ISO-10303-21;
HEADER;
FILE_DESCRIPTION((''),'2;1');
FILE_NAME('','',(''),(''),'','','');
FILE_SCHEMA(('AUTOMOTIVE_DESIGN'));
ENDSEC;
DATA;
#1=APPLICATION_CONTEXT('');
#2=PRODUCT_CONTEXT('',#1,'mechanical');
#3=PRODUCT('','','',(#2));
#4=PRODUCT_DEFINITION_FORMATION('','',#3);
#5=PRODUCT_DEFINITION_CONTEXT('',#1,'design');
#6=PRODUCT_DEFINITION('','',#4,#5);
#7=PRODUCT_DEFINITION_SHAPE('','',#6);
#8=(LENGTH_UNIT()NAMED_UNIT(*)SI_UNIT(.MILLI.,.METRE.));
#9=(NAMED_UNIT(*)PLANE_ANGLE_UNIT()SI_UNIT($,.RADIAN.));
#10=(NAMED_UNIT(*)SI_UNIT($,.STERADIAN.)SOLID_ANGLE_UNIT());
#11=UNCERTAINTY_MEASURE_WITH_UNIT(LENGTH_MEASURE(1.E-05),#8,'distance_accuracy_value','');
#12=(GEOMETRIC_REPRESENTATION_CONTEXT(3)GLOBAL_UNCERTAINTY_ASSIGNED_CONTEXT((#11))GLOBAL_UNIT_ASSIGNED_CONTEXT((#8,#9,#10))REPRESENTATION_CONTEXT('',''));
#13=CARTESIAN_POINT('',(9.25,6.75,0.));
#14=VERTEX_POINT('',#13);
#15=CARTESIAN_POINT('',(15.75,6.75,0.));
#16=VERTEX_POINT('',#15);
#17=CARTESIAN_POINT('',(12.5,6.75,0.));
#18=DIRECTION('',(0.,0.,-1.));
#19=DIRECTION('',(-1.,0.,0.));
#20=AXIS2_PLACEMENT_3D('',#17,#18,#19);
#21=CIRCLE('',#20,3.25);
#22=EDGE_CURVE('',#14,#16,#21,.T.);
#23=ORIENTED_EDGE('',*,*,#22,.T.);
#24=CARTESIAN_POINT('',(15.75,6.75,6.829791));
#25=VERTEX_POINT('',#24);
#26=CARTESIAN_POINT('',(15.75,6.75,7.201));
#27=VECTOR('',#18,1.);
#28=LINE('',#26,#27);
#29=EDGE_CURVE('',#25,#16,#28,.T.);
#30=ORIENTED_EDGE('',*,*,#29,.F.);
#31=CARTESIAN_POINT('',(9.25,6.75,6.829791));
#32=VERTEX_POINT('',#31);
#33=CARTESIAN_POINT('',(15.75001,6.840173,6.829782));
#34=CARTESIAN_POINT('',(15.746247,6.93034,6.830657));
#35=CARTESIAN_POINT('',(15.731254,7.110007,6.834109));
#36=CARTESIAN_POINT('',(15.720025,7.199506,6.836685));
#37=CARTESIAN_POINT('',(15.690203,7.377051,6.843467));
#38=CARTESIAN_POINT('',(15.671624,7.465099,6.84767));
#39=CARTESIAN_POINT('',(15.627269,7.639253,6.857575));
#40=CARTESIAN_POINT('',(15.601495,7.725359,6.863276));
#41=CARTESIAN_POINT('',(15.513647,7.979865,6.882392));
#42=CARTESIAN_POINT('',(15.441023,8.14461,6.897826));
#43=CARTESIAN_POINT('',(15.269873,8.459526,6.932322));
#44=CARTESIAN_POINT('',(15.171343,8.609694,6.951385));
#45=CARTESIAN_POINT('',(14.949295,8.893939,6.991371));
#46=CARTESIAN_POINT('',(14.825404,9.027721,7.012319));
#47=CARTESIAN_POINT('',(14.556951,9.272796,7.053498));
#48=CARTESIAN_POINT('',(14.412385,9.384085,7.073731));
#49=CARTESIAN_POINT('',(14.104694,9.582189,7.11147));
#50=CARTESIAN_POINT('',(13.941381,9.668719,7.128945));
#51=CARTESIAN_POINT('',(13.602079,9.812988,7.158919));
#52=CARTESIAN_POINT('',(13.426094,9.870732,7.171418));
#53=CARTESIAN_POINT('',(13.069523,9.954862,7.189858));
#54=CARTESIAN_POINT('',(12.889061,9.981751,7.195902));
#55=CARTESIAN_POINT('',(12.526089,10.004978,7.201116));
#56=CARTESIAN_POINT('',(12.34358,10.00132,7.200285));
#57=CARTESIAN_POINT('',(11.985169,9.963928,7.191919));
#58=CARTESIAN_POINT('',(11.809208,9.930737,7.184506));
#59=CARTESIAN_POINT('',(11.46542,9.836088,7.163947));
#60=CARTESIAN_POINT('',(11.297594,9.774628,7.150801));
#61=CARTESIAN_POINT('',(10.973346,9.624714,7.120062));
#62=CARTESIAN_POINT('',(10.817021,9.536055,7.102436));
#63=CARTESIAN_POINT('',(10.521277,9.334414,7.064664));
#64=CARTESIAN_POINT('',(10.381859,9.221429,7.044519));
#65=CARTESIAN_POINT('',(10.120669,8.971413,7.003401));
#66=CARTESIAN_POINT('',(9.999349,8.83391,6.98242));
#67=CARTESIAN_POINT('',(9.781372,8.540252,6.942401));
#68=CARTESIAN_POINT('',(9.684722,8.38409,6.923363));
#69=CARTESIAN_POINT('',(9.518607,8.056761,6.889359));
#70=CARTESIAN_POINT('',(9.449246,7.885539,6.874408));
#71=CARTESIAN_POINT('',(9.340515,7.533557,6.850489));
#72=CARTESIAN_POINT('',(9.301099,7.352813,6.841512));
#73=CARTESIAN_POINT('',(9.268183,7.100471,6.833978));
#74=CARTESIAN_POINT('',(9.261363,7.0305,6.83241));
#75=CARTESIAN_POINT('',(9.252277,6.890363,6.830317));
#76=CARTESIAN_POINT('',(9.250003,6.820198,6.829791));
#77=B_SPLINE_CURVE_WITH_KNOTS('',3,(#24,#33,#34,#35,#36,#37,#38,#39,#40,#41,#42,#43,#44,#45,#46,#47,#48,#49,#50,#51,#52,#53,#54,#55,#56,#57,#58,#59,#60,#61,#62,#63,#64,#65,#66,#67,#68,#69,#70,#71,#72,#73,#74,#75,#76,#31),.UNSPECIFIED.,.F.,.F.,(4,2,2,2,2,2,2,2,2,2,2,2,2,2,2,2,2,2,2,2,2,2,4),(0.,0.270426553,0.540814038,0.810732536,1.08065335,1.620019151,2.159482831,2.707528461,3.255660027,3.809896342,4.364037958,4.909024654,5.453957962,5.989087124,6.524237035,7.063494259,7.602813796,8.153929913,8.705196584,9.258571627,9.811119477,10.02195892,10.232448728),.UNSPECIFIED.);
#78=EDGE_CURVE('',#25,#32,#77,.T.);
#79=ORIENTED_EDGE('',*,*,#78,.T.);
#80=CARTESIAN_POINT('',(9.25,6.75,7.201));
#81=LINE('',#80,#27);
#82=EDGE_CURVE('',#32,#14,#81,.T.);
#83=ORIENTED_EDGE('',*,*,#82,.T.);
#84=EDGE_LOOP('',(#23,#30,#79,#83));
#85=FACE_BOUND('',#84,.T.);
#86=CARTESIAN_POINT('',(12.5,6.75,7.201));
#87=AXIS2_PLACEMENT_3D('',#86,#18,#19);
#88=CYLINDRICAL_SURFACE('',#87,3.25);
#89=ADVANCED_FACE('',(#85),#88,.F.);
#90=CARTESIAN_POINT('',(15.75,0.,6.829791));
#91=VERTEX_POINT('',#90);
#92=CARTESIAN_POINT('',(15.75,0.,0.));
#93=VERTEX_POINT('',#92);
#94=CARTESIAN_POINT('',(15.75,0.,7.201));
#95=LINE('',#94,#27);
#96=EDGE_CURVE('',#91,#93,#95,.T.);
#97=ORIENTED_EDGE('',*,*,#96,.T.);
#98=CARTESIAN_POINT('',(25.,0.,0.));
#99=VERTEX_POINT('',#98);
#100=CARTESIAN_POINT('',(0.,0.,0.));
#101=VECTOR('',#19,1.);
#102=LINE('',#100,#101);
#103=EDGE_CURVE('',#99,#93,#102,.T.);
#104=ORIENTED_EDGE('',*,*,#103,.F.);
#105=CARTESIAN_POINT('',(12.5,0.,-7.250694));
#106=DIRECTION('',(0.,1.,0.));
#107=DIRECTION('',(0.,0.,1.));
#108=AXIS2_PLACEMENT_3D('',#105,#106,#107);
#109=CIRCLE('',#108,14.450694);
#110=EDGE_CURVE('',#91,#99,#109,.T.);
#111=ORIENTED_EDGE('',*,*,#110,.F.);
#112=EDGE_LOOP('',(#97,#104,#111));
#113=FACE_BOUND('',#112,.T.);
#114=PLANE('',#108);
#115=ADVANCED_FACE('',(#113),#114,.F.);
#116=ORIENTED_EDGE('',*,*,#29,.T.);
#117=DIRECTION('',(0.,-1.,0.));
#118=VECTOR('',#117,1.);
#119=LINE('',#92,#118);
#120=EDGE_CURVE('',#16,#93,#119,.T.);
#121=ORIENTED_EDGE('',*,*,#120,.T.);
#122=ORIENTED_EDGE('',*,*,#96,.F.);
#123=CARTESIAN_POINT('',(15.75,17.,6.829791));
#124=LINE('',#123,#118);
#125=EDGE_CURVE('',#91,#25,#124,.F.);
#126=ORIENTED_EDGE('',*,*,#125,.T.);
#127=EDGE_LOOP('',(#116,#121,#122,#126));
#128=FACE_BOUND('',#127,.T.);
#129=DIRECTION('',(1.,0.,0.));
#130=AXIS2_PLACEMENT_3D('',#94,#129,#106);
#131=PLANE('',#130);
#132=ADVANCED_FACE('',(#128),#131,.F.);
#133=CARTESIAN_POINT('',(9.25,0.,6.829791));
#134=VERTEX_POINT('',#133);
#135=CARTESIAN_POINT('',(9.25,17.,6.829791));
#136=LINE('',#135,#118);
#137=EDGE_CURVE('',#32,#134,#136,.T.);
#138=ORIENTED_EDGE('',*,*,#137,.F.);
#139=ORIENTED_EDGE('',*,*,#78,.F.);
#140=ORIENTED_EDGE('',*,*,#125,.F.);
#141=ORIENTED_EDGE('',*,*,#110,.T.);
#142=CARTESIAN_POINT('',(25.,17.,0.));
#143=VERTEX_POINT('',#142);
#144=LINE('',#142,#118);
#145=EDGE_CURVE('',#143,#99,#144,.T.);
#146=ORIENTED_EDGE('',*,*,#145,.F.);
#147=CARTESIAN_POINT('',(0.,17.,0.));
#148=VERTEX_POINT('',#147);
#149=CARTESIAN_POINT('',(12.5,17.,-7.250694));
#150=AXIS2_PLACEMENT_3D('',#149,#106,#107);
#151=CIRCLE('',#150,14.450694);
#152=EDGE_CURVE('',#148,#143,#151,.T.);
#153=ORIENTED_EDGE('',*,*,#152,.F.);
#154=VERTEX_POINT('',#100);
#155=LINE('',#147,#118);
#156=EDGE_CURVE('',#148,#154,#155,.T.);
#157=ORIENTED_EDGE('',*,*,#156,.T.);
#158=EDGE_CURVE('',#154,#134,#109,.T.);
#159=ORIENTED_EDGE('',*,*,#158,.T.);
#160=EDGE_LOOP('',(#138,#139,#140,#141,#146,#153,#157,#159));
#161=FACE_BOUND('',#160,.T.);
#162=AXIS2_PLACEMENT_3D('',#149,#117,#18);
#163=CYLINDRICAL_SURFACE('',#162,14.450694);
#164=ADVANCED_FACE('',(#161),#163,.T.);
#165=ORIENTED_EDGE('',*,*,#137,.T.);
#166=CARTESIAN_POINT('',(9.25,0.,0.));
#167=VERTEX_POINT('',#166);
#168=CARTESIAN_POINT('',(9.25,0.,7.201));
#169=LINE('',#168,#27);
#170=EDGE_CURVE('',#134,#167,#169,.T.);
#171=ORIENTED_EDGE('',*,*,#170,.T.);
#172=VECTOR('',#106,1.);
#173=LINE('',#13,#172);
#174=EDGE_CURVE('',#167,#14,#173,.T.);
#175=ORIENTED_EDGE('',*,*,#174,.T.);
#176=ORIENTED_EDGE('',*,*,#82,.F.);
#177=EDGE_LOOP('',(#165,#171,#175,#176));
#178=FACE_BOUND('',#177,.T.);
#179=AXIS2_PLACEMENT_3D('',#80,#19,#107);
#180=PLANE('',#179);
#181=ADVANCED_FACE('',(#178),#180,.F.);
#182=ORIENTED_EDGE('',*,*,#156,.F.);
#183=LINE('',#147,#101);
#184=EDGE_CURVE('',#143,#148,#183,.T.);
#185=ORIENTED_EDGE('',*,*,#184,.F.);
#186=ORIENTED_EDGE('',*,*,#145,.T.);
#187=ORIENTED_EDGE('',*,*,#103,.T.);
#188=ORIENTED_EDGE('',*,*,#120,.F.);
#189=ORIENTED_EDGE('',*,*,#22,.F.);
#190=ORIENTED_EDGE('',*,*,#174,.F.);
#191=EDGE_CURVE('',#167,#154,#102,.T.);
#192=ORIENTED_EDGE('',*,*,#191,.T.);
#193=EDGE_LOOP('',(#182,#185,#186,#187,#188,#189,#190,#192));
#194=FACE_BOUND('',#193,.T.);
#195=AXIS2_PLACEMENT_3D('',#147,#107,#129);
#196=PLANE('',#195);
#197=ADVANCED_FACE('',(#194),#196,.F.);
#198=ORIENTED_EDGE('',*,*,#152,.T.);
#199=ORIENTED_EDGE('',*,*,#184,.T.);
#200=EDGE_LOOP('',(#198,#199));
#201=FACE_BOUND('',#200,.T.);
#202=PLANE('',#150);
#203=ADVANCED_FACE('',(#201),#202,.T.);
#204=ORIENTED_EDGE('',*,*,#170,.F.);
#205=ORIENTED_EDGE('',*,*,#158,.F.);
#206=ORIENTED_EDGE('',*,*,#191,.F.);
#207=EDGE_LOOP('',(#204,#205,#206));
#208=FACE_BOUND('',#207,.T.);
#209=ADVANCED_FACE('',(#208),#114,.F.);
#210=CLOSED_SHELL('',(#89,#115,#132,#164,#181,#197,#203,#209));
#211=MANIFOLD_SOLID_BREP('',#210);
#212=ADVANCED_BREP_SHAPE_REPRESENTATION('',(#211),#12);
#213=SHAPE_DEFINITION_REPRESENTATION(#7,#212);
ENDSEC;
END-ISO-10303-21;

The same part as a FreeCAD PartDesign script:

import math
import FreeCAD as App
import Part
import Sketcher
Q = App.Units.Quantity

doc = App.newDocument("Part")
body = doc.addObject("PartDesign::Body", "Body")

sketch1 = doc.addObject("Sketcher::SketchObject", "Sketch")
body.addObject(sketch1)
sketch1.AttachmentSupport = (doc.XZ_Plane, [""])
sketch1.MapMode = "FlatFace"
sketch1.addGeometry([
    Part.LineSegment(App.Vector(25, 0, 0), App.Vector(0, 0, 0)),
    Part.ArcOfCircle(Part.Circle(App.Vector(12.5, -7.250694, 0), App.Vector(0, 0, 1), 14.450694), math.radians(30.116115), math.radians(149.883885)),
], False)
sketch1.addConstraint([
    Sketcher.Constraint("Coincident", 0, 1, 1, 1),
    Sketcher.Constraint("Coincident", 1, 2, 0, 2),
    Sketcher.Constraint("Horizontal", 0),
    Sketcher.Constraint("Coincident", 1, 2, -1, 1),
    Sketcher.Constraint("DistanceX", 0, 2, 0, 1, Q("25 mm")),
    Sketcher.Constraint("Radius", 1, Q("14.450694 mm")),
])
pad1 = doc.addObject("PartDesign::Pad", "Pad")
body.addObject(pad1)
pad1.Profile = sketch1
pad1.Length = 17
pad1.Reversed = True

sketch2 = doc.addObject("Sketcher::SketchObject", "Sketch001")
body.addObject(sketch2)
sketch2.AttachmentSupport = (doc.XY_Plane, [""])
sketch2.MapMode = "FlatFace"
sketch2.addGeometry([
    Part.LineSegment(App.Vector(15.75, 6.75, 0), App.Vector(15.75, 0, 0)),
    Part.LineSegment(App.Vector(15.75, 0, 0), App.Vector(9.25, 0, 0)),
    Part.LineSegment(App.Vector(9.25, 0, 0), App.Vector(9.25, 6.75, 0)),
    Part.ArcOfCircle(Part.Circle(App.Vector(12.5, 6.75, 0), App.Vector(0, 0, 1), 3.25), math.radians(0), math.radians(180)),
], False)
sketch2.addConstraint([
    Sketcher.Constraint("Coincident", 0, 2, 1, 1),
    Sketcher.Constraint("Coincident", 1, 2, 2, 1),
    Sketcher.Constraint("Tangent", 2, 2, 3, 2),
    Sketcher.Constraint("Tangent", 3, 1, 0, 1),
    Sketcher.Constraint("Vertical", 0),
    Sketcher.Constraint("Horizontal", 1),
    Sketcher.Constraint("Vertical", 2),
    Sketcher.Constraint("PointOnObject", 0, 2, -1),
    Sketcher.Constraint("Radius", 3, Q("3.25 mm")),
    Sketcher.Constraint("DistanceY", 0, 2, 0, 1, Q("6.75 mm")),
    Sketcher.Constraint("DistanceX", -1, 1, 3, 3, Q("12.5 mm")),
])
pocket1 = doc.addObject("PartDesign::Pocket", "Pocket")
body.addObject(pocket1)
pocket1.Profile = sketch2
pocket1.Type = "UpToFirst"
pocket1.Reversed = True

doc.recompute()
